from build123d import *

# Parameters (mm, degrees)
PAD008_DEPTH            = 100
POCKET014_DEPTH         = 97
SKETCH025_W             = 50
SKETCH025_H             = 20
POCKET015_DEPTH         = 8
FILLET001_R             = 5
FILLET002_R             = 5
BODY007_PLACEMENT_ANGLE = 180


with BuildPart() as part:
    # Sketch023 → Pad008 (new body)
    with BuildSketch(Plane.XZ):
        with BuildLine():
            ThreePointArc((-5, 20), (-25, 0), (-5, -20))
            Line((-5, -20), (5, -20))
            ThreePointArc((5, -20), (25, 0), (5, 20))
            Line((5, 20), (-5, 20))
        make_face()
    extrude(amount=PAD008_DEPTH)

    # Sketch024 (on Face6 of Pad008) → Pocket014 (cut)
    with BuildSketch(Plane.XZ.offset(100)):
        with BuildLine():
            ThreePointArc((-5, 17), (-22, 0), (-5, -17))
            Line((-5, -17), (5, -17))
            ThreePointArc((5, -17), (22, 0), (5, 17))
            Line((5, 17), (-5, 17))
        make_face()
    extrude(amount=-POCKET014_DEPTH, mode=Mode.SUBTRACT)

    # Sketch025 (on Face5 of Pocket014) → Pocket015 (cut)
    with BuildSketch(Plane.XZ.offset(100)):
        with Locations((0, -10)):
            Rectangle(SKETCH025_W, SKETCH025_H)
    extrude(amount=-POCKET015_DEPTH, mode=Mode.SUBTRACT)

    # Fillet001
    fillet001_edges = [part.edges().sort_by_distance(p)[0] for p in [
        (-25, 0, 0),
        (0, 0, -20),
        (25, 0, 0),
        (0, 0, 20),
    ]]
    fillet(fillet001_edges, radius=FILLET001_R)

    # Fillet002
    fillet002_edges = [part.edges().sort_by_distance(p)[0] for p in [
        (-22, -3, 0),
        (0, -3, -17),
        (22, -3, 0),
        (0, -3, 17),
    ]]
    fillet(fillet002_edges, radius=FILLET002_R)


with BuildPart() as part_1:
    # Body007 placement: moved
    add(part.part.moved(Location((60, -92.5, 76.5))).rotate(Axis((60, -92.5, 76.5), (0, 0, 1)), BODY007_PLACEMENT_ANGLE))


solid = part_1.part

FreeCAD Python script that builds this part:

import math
import FreeCAD as App
import Part
import Sketcher

V = App.Vector
Q = App.Units.Quantity


def edges_at(feature, points):
    """Names of the edges that pass closest to the given points."""
    edges = feature.Shape.Edges
    near = lambda p: min(range(len(edges)), key=lambda i: edges[i].distToShape(Part.Vertex(*p))[0])
    return sorted({f"Edge{near(p) + 1}" for p in points})

doc = App.newDocument("Part")
body = doc.addObject("PartDesign::Body", "Body")

sketch1 = doc.addObject("Sketcher::SketchObject", "Sketch")
body.addObject(sketch1)
sketch1.AttachmentSupport = (doc.XZ_Plane, [""])
sketch1.MapMode = "FlatFace"
sketch1.addGeometry(Part.ArcOfCircle(Part.Circle(V(-5, 0, 0), V(0, 0, 1), 20), math.radians(90), math.radians(270)), False)
sketch1.addGeometry(Part.LineSegment(V(-5, -20, 0), V(5, -20, 0)), False)
sketch1.addGeometry(Part.ArcOfCircle(Part.Circle(V(5, 0, 0), V(0, 0, 1), 20), math.radians(-90), math.radians(90)), False)
sketch1.addGeometry(Part.LineSegment(V(5, 20, 0), V(-5, 20, 0)), False)
sketch1.addConstraint(Sketcher.Constraint("Tangent", 0, 2, 1, 1))
sketch1.addConstraint(Sketcher.Constraint("Tangent", 1, 2, 2, 1))
sketch1.addConstraint(Sketcher.Constraint("Tangent", 2, 2, 3, 1))
sketch1.addConstraint(Sketcher.Constraint("Tangent", 3, 2, 0, 1))
sketch1.addConstraint(Sketcher.Constraint("Horizontal", 1))
sketch1.addConstraint(Sketcher.Constraint("Horizontal", 3))
sketch1.addConstraint(Sketcher.Constraint("Symmetric", 0, 3, 2, 3, -1, 1))
sketch1.addConstraint(Sketcher.Constraint("Radius", 0, Q("20 mm")))
sketch1.addConstraint(Sketcher.Constraint("DistanceX", 1, 1, 1, 2, Q("10 mm")))
pad1 = doc.addObject("PartDesign::Pad", "Pad")
body.addObject(pad1)
pad1.Profile = sketch1
pad1.Length = 100

sketch2 = doc.addObject("Sketcher::SketchObject", "Sketch001")
body.addObject(sketch2)
sketch2.AttachmentSupport = (doc.XZ_Plane, [""])
sketch2.MapMode = "FlatFace"
sketch2.AttachmentOffset = App.Placement(V(0, 0, 100), App.Rotation())
sketch2.addGeometry(Part.ArcOfCircle(Part.Circle(V(-5, 0, 0), V(0, 0, 1), 17), math.radians(90), math.radians(270)), False)
sketch2.addGeometry(Part.LineSegment(V(-5, -17, 0), V(5, -17, 0)), False)
sketch2.addGeometry(Part.ArcOfCircle(Part.Circle(V(5, 0, 0), V(0, 0, 1), 17), math.radians(-90), math.radians(90)), False)
sketch2.addGeometry(Part.LineSegment(V(5, 17, 0), V(-5, 17, 0)), False)
sketch2.addConstraint(Sketcher.Constraint("Tangent", 0, 2, 1, 1))
sketch2.addConstraint(Sketcher.Constraint("Tangent", 1, 2, 2, 1))
sketch2.addConstraint(Sketcher.Constraint("Tangent", 2, 2, 3, 1))
sketch2.addConstraint(Sketcher.Constraint("Tangent", 3, 2, 0, 1))
sketch2.addConstraint(Sketcher.Constraint("Horizontal", 1))
sketch2.addConstraint(Sketcher.Constraint("Horizontal", 3))
sketch2.addConstraint(Sketcher.Constraint("Symmetric", 0, 3, 2, 3, -1, 1))
sketch2.addConstraint(Sketcher.Constraint("Radius", 0, Q("17 mm")))
sketch2.addConstraint(Sketcher.Constraint("DistanceX", 1, 1, 1, 2, Q("10 mm")))
pocket1 = doc.addObject("PartDesign::Pocket", "Pocket")
body.addObject(pocket1)
pocket1.Profile = sketch2
pocket1.Length = 97

sketch3 = doc.addObject("Sketcher::SketchObject", "Sketch002")
body.addObject(sketch3)
sketch3.AttachmentSupport = (doc.XZ_Plane, [""])
sketch3.MapMode = "FlatFace"
sketch3.AttachmentOffset = App.Placement(V(0, 0, 100), App.Rotation())
sketch3.addGeometry(Part.LineSegment(V(-25, 0, 0), V(-25, -20, 0)), False)
sketch3.addGeometry(Part.LineSegment(V(-25, -20, 0), V(25, -20, 0)), False)
sketch3.addGeometry(Part.LineSegment(V(25, -20, 0), V(25, 0, 0)), False)
sketch3.addGeometry(Part.LineSegment(V(25, 0, 0), V(-25, 0, 0)), False)
sketch3.addConstraint(Sketcher.Constraint("Coincident", 0, 2, 1, 1))
sketch3.addConstraint(Sketcher.Constraint("Coincident", 1, 2, 2, 1))
sketch3.addConstraint(Sketcher.Constraint("Coincident", 2, 2, 3, 1))
sketch3.addConstraint(Sketcher.Constraint("Coincident", 3, 2, 0, 1))
sketch3.addConstraint(Sketcher.Constraint("Vertical", 0))
sketch3.addConstraint(Sketcher.Constraint("Horizontal", 1))
sketch3.addConstraint(Sketcher.Constraint("Vertical", 2))
sketch3.addConstraint(Sketcher.Constraint("Horizontal", 3))
sketch3.addConstraint(Sketcher.Constraint("Symmetric", 2, 2, 3, 2, -1, 1))
sketch3.addConstraint(Sketcher.Constraint("DistanceX", 1, 1, 1, 2, Q("50 mm")))
sketch3.addConstraint(Sketcher.Constraint("DistanceY", 0, 2, 0, 1, Q("20 mm")))
pocket2 = doc.addObject("PartDesign::Pocket", "Pocket001")
body.addObject(pocket2)
pocket2.Profile = sketch3
pocket2.Length = 8
doc.recompute()

fillet = doc.addObject("PartDesign::Fillet", "Fillet")
body.addObject(fillet)
fillet.Base = (pocket2, edges_at(pocket2, [
    (-25, 0, 0),
    (0, 0, -20),
    (25, 0, 0),
    (0, 0, 20),
]))
fillet.Radius = 5
doc.recompute()

fillet2 = doc.addObject("PartDesign::Fillet", "Fillet001")
body.addObject(fillet2)
fillet2.Base = (fillet, edges_at(fillet, [
    (-22, -3, 0),
    (0, -3, -17),
    (22, -3, 0),
    (0, -3, 17),
]))
fillet2.Radius = 5
body2 = doc.addObject("PartDesign::Body", "Body001")
doc.recompute()

body.Placement = App.Placement(V(60, -92.5, 76.5), App.Rotation(V(0, 0, 1), 180))
boolean = doc.addObject("PartDesign::Boolean", "Boolean")
body2.addObject(boolean)
boolean.Type = "Fuse"
boolean.addObjects([body])

doc.recompute()
